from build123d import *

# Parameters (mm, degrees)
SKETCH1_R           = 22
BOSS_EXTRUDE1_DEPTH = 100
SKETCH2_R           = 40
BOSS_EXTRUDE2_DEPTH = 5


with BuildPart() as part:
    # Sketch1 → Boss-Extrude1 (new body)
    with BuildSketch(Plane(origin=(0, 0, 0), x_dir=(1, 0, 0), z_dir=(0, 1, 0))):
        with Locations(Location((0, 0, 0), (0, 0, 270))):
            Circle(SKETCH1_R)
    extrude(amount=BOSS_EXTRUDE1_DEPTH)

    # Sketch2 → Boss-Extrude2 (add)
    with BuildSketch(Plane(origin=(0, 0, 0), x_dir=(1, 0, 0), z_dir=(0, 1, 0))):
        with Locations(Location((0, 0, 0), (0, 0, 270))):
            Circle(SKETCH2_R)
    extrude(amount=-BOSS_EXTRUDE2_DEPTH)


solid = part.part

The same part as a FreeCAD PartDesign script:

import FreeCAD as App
import Part
import Sketcher

doc = App.newDocument("Part")
body = doc.addObject("PartDesign::Body", "Body")

sketch1 = doc.addObject("Sketcher::SketchObject", "Sketch")
body.addObject(sketch1)
sketch1.AttachmentSupport = (doc.XZ_Plane, [""])
sketch1.MapMode = "FlatFace"
sketch1.addGeometry(Part.Circle(App.Vector(0, 0, 0), App.Vector(0, 0, 1), 22), False)
sketch1.addConstraint(Sketcher.Constraint("Coincident", 0, 3, -1, 1))
sketch1.addConstraint(Sketcher.Constraint("Diameter", 0, 44.0))
pad1 = doc.addObject("PartDesign::Pad", "Pad")
body.addObject(pad1)
pad1.Profile = sketch1
pad1.Length = 100
pad1.Reversed = True

sketch2 = doc.addObject("Sketcher::SketchObject", "Sketch001")
body.addObject(sketch2)
sketch2.AttachmentSupport = (doc.XZ_Plane, [""])
sketch2.MapMode = "FlatFace"
sketch2.addGeometry(Part.Circle(App.Vector(0, 0, 0), App.Vector(0, 0, 1), 40), False)
sketch2.addConstraint(Sketcher.Constraint("Coincident", 0, 3, -1, 1))
sketch2.addConstraint(Sketcher.Constraint("Diameter", 0, 80.0))
pad2 = doc.addObject("PartDesign::Pad", "Pad001")
body.addObject(pad2)
pad2.Profile = sketch2
pad2.Length = 5

doc.recompute()
